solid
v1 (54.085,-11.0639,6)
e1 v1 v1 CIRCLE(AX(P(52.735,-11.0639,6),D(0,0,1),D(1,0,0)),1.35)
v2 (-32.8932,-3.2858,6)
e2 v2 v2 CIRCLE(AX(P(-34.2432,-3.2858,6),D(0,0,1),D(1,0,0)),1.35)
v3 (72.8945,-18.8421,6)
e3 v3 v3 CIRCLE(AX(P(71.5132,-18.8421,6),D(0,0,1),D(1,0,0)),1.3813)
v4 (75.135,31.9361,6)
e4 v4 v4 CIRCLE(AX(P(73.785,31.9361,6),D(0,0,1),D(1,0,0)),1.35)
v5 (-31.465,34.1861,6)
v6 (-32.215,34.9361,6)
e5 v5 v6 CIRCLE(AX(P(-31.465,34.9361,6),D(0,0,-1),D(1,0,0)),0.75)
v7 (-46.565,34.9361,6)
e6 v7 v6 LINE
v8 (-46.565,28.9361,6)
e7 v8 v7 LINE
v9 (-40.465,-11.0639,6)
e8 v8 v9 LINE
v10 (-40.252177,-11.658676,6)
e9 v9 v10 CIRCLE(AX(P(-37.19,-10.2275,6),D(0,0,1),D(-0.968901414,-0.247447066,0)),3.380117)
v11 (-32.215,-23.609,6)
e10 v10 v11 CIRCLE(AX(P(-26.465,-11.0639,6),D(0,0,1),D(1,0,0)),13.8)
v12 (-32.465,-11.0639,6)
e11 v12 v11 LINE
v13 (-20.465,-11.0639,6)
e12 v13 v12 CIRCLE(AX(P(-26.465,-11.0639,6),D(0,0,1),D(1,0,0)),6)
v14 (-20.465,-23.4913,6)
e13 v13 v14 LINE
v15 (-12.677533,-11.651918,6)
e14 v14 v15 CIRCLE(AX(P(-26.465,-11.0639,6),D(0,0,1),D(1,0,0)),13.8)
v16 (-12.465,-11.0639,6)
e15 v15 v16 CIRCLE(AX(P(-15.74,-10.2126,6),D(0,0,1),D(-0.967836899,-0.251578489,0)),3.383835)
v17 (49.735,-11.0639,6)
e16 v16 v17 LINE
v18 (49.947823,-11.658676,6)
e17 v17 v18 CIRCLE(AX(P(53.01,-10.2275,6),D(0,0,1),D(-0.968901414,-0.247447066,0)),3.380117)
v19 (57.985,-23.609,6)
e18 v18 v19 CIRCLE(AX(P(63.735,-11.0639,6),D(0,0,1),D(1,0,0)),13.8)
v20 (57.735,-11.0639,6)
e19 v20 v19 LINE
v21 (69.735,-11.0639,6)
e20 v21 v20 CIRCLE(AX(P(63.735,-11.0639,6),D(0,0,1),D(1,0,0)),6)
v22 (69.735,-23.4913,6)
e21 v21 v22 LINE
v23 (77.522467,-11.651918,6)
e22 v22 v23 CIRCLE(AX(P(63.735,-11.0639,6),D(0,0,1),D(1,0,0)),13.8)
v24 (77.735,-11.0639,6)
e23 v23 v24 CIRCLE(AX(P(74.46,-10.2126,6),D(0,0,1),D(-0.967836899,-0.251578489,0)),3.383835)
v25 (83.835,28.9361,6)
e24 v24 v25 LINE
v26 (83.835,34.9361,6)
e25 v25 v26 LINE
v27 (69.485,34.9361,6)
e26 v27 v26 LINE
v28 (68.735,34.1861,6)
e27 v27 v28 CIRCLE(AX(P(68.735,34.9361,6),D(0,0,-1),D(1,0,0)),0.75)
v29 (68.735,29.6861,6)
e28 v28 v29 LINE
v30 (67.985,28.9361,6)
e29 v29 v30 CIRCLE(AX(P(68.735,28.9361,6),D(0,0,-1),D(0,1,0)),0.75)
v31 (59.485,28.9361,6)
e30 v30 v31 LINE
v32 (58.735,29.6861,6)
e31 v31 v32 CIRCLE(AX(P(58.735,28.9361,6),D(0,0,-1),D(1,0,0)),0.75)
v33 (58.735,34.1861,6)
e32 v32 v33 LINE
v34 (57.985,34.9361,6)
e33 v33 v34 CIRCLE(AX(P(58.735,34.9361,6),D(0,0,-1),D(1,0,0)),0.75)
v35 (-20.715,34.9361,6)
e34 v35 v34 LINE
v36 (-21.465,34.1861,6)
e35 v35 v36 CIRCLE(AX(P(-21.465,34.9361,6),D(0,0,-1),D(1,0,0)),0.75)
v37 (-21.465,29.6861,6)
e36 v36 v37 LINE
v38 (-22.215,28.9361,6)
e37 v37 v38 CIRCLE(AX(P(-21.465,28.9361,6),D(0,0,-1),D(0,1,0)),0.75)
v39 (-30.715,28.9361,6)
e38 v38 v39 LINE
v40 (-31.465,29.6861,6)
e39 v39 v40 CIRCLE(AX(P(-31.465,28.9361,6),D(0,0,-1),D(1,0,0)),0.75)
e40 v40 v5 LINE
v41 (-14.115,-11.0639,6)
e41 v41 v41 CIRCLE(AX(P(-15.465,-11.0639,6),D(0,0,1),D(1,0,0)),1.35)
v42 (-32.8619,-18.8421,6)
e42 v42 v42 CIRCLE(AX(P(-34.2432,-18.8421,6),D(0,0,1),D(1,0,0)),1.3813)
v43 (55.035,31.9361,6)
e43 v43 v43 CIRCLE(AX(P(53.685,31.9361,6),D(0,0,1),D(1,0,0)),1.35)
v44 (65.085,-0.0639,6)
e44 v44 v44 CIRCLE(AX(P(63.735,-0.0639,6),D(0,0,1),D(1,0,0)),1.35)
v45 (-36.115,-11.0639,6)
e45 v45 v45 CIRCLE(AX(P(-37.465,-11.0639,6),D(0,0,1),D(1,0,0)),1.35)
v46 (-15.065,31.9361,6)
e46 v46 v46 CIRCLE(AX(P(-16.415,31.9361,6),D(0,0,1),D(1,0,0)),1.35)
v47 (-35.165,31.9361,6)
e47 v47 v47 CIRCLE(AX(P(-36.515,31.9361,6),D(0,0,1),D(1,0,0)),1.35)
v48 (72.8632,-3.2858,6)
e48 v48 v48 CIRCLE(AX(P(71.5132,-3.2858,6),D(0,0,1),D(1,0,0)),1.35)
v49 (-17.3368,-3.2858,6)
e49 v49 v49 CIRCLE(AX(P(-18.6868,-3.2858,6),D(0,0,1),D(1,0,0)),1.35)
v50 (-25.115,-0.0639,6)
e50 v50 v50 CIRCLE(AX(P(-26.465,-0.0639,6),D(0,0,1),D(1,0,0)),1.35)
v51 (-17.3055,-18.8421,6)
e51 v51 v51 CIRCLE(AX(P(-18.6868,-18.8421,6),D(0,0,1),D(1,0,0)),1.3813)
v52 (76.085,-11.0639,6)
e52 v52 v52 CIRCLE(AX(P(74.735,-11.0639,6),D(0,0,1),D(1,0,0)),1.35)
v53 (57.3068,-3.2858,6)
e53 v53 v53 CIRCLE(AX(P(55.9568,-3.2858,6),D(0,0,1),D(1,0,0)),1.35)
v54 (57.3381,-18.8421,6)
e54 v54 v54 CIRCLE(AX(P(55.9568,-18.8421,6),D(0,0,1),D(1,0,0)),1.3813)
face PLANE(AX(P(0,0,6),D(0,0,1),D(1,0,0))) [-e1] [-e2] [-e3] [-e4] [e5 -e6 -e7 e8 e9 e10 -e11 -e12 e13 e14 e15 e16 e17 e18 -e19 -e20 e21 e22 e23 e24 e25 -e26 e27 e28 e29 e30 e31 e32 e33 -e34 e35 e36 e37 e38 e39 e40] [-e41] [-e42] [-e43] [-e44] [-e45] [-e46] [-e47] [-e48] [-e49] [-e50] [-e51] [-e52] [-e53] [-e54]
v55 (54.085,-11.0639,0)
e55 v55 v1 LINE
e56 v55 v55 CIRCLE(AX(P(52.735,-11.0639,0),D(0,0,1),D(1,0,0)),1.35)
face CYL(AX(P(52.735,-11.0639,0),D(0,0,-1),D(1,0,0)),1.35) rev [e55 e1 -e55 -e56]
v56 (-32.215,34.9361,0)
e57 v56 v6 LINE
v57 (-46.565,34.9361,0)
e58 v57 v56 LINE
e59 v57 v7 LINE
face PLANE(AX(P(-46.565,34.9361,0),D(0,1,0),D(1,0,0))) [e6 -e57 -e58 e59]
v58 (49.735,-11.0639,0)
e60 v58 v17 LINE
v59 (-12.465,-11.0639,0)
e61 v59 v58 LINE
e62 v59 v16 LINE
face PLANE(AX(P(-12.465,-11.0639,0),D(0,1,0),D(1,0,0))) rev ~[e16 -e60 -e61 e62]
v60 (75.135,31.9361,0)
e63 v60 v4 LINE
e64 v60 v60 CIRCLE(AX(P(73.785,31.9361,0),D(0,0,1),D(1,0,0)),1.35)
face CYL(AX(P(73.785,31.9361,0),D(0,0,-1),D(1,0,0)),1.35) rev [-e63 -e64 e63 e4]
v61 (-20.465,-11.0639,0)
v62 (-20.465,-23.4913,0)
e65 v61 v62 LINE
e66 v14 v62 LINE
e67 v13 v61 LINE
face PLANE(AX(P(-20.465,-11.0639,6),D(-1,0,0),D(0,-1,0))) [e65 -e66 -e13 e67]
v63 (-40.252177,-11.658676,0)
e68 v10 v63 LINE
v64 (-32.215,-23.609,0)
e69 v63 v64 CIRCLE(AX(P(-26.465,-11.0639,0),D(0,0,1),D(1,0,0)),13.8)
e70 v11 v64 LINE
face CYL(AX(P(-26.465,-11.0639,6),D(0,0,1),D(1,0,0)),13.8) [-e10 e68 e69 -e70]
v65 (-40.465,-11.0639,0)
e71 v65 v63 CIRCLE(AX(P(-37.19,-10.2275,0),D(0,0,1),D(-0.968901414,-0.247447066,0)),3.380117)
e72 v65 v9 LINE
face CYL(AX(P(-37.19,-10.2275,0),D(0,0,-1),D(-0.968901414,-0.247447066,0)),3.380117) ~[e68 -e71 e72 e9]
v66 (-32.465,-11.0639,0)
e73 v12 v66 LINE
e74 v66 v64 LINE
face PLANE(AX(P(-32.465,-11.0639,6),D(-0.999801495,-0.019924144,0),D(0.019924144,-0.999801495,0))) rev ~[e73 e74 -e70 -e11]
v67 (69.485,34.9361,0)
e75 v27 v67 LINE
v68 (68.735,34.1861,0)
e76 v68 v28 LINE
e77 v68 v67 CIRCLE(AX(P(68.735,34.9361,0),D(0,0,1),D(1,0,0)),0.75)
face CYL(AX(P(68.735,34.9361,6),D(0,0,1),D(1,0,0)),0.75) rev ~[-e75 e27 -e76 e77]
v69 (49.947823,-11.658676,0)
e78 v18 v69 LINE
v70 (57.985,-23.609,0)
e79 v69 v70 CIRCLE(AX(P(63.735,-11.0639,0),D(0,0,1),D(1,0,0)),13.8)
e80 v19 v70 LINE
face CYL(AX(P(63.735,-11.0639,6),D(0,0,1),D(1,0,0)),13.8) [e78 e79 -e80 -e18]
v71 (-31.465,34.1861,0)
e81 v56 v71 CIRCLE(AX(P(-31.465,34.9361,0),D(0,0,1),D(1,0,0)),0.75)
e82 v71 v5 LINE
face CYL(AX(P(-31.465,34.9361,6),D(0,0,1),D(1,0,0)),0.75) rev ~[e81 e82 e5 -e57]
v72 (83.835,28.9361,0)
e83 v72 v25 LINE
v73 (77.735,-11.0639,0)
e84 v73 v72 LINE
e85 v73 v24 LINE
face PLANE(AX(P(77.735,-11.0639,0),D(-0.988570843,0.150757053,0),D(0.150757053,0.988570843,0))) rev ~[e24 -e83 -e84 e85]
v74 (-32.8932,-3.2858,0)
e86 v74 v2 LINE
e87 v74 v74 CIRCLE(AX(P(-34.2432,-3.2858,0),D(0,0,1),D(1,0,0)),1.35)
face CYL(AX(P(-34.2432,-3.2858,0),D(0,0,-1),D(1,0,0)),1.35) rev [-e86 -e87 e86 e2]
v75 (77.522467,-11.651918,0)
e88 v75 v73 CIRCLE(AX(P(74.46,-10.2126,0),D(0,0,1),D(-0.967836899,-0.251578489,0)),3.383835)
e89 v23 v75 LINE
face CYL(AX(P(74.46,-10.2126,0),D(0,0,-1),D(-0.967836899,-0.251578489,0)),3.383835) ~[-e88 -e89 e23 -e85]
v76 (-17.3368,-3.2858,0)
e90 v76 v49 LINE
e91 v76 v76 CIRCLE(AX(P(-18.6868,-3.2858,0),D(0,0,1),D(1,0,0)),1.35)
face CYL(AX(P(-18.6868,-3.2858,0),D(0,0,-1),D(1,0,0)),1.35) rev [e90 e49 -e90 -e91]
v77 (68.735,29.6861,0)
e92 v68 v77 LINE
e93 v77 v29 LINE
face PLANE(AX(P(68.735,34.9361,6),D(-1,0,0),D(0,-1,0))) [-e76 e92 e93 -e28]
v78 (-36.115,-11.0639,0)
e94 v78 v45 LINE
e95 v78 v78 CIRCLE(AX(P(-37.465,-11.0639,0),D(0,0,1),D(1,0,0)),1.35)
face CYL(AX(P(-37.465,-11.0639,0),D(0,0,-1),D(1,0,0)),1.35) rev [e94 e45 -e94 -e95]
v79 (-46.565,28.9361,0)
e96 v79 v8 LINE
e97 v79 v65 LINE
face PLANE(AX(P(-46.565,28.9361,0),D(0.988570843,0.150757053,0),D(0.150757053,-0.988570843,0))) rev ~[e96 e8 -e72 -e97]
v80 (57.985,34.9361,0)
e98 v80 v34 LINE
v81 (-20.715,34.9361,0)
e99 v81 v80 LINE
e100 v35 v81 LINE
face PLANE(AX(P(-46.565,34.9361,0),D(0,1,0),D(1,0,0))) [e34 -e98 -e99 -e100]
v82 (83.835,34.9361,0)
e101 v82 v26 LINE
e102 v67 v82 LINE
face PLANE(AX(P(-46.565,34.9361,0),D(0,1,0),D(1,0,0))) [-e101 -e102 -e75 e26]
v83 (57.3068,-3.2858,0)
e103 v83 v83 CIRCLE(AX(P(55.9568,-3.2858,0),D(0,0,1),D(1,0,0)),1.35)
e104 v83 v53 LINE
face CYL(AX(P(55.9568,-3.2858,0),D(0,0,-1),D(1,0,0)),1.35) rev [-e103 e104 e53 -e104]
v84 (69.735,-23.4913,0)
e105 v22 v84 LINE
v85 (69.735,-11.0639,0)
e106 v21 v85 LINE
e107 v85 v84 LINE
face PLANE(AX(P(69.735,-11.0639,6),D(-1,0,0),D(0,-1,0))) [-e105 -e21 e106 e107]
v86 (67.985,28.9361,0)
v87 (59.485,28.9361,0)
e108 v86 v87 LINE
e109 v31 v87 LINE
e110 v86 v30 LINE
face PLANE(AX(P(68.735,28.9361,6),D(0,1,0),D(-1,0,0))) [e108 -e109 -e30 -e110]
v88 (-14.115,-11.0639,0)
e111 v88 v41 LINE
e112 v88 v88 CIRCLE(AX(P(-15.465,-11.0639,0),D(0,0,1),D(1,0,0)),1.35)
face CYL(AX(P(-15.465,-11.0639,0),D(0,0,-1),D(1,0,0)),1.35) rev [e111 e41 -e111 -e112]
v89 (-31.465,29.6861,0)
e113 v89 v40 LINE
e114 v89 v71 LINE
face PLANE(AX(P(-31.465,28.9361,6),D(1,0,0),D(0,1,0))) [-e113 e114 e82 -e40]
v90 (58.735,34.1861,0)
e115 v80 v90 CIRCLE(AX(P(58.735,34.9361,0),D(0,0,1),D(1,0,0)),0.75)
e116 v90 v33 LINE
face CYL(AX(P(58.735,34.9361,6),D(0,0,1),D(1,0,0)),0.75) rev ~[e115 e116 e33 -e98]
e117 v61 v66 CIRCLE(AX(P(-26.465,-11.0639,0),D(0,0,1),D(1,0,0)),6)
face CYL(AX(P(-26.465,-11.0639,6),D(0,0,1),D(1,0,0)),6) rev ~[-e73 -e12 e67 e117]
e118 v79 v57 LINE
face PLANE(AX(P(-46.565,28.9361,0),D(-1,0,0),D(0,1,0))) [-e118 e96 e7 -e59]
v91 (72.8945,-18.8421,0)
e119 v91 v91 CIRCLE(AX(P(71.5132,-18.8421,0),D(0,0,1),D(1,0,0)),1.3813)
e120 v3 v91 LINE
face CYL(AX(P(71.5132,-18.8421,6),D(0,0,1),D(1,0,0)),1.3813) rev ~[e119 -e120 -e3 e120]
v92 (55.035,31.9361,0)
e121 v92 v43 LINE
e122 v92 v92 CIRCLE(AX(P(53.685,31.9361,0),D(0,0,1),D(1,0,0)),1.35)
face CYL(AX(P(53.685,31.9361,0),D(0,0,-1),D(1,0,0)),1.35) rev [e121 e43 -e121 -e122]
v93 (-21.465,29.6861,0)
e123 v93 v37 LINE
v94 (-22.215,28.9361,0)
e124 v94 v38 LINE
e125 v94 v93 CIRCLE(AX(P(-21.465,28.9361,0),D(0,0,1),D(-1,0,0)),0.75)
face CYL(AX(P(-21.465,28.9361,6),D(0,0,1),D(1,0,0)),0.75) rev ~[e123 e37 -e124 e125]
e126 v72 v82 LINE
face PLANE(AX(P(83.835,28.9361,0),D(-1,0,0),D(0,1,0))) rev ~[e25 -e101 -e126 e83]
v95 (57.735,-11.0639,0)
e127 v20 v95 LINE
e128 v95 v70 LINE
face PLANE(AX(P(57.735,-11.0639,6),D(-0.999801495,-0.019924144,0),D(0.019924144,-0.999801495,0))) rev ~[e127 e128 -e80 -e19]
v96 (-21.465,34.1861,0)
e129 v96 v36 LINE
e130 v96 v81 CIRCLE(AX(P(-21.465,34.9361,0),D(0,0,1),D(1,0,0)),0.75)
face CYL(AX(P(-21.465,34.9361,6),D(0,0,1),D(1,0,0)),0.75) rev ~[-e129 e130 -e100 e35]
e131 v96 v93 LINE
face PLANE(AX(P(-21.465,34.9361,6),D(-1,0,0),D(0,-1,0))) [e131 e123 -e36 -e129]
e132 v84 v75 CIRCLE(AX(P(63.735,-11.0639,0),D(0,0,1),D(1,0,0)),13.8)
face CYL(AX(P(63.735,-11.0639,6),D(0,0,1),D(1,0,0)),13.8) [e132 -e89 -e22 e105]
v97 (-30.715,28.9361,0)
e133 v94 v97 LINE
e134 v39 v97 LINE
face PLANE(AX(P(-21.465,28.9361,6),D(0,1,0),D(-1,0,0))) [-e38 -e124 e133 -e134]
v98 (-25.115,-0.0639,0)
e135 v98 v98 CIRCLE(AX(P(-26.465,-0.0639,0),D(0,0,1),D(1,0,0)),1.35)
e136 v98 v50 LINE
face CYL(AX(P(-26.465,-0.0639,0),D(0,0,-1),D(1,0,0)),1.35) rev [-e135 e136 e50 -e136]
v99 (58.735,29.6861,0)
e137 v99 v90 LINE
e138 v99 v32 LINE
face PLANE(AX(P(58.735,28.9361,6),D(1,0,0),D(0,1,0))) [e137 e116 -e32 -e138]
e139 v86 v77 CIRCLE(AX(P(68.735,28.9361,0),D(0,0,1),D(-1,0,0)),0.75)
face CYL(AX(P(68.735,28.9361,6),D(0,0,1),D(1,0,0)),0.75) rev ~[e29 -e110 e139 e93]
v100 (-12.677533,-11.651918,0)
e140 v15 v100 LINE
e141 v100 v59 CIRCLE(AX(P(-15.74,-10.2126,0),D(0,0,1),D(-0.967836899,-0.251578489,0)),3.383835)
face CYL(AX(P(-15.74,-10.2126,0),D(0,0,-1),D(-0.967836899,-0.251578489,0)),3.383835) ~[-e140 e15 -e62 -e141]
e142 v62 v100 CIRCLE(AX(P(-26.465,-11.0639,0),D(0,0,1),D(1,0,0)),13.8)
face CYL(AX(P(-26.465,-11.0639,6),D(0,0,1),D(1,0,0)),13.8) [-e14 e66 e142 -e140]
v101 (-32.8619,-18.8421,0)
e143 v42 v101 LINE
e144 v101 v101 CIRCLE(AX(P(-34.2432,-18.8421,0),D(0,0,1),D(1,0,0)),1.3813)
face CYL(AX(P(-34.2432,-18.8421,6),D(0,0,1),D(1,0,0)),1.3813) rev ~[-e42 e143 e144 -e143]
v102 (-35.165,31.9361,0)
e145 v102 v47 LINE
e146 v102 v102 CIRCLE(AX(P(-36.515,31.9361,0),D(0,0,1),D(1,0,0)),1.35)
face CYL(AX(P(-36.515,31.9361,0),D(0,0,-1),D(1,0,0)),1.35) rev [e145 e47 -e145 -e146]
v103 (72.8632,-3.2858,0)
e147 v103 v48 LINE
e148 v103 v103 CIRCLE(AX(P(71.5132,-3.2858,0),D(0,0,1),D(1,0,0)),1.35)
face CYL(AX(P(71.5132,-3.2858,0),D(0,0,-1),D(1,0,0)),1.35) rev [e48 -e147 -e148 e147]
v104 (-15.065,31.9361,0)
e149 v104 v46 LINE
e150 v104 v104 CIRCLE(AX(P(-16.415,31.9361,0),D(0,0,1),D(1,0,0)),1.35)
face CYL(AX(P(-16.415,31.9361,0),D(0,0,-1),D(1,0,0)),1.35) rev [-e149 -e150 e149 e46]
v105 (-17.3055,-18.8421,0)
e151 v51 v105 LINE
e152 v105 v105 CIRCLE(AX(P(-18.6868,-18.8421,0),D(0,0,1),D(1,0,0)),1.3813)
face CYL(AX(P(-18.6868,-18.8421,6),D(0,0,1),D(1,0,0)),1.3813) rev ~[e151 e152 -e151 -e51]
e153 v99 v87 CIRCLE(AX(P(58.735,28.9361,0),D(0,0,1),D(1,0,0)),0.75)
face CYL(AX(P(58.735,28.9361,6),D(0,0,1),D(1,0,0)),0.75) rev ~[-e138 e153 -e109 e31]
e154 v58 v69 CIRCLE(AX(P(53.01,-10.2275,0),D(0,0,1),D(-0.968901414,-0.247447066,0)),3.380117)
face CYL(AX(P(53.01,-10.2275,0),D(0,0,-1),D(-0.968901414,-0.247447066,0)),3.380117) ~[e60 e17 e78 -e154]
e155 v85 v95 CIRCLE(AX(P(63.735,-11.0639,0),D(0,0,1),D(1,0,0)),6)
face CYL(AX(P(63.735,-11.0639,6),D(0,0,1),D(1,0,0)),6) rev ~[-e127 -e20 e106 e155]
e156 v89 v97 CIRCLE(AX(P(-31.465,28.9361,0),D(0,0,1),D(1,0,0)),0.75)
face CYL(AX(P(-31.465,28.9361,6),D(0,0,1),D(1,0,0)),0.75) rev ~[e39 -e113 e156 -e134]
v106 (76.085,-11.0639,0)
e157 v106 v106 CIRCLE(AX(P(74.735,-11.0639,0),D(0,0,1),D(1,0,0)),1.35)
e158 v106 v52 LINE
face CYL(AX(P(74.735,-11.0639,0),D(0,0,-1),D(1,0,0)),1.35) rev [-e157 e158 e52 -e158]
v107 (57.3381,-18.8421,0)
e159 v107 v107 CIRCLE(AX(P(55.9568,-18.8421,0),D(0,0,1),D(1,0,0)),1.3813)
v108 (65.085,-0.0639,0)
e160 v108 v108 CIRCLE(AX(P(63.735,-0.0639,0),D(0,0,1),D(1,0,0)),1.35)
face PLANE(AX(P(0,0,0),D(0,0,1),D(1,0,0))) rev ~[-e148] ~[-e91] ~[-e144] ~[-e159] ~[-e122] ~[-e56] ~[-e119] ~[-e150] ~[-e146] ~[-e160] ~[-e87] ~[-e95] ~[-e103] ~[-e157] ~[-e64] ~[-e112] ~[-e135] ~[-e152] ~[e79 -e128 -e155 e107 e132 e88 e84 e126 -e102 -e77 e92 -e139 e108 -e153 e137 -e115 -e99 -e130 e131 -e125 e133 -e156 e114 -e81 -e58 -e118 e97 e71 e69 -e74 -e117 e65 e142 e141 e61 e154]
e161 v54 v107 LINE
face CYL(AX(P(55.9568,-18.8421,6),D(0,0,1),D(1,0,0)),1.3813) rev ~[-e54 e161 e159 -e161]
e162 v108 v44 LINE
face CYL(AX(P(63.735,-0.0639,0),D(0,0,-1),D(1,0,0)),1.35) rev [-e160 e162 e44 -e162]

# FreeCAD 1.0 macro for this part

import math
import FreeCAD as App
import Part
import Sketcher

V = App.Vector
Q = App.Units.Quantity

doc = App.newDocument("Part")
body = doc.addObject("PartDesign::Body", "Body")

# Sketch on XY plane
sketch1 = body.newObject("Sketcher::SketchObject", "Sketch")
sketch1.AttachmentSupport = (doc.getObject("XY_Plane"), [""])
sketch1.MapMode = "FlatFace"
sketch1.addGeometry(Part.LineSegment(V(-46.6, 34.9, 0), V(-46.6, 28.9, 0)), False)
sketch1.addGeometry(Part.LineSegment(V(-46.6, 28.9, 0), V(-40.5, -11.1, 0)), False)
sketch1.addGeometry(Part.ArcOfCircle(Part.Circle(V(-37.2, -10.2, 0), V(0, 0, 1), 3.4), math.radians(-166), math.radians(-14)), False)
sketch1.addGeometry(Part.ArcOfCircle(Part.Circle(V(-26.5, -11.1, 0), V(0, 0, 1), 7.4), math.radians(0), math.radians(180)), False)
sketch1.addGeometry(Part.ArcOfCircle(Part.Circle(V(-15.7, -10.2, 0), V(0, 0, 1), 3.4), math.radians(-165), math.radians(-15)), False)
sketch1.addGeometry(Part.LineSegment(V(-12.5, -11.1, 0), V(49.7, -11.1, 0)), False)
sketch1.addGeometry(Part.ArcOfCircle(Part.Circle(V(53, -10.2, 0), V(0, 0, 1), 3.4), math.radians(-166), math.radians(-14)), False)
sketch1.addGeometry(Part.ArcOfCircle(Part.Circle(V(63.7, -11.1, 0), V(0, 0, 1), 7.5), math.radians(0), math.radians(180)), False)
sketch1.addGeometry(Part.ArcOfCircle(Part.Circle(V(74.5, -10.2, 0), V(0, 0, 1), 3.4), math.radians(-165), math.radians(-15)), False)
sketch1.addGeometry(Part.LineSegment(V(77.7, -11.1, 0), V(83.8, 28.9, 0)), False)
sketch1.addGeometry(Part.LineSegment(V(83.8, 28.9, 0), V(83.8, 34.9, 0)), False)
sketch1.addGeometry(Part.LineSegment(V(83.8, 34.9, 0), V(-46.6, 34.9, 0)), False)
sketch1.addGeometry(Part.Circle(V(-36.5, 31.9, 0), V(0, 0, 1), 1.4), False)
sketch1.addGeometry(Part.Circle(V(-16.4, 31.9, 0), V(0, 0, 1), 1.4), False)
sketch1.addGeometry(Part.Circle(V(53.7, 31.9, 0), V(0, 0, 1), 1.4), False)
sketch1.addGeometry(Part.Circle(V(73.8, 31.9, 0), V(0, 0, 1), 1.4), False)
sketch1.addGeometry(Part.Circle(V(63.7, -0.1, 0), V(0, 0, 1), 1.4), False)
sketch1.addGeometry(Part.Circle(V(-37.5, -11.1, 0), V(0, 0, 1), 1.4), False)
sketch1.addGeometry(Part.Circle(V(-15.5, -11.1, 0), V(0, 0, 1), 1.4), False)
sketch1.addGeometry(Part.Circle(V(-34.2, -3.3, 0), V(0, 0, 1), 1.4), False)
sketch1.addGeometry(Part.Circle(V(-18.7, -3.3, 0), V(0, 0, 1), 1.4), False)
sketch1.addGeometry(Part.Circle(V(-26.5, -0.1, 0), V(0, 0, 1), 1.4), False)
sketch1.addGeometry(Part.Circle(V(52.7, -11.1, 0), V(0, 0, 1), 1.4), False)
sketch1.addGeometry(Part.Circle(V(74.7, -11.1, 0), V(0, 0, 1), 1.4), False)
sketch1.addGeometry(Part.Circle(V(56, -3.3, 0), V(0, 0, 1), 1.4), False)
sketch1.addGeometry(Part.Circle(V(71.5, -3.3, 0), V(0, 0, 1), 1.4), False)
sketch1.addConstraint(Sketcher.Constraint("Coincident", 0, 2, 1, 1))
sketch1.addConstraint(Sketcher.Constraint("Coincident", 1, 2, 2, 1))
sketch1.addConstraint(Sketcher.Constraint("Coincident", 2, 2, 3, 2))
sketch1.addConstraint(Sketcher.Constraint("Coincident", 3, 1, 4, 1))
sketch1.addConstraint(Sketcher.Constraint("Coincident", 4, 2, 5, 1))
sketch1.addConstraint(Sketcher.Constraint("Coincident", 5, 2, 6, 1))
sketch1.addConstraint(Sketcher.Constraint("Coincident", 6, 2, 7, 2))
sketch1.addConstraint(Sketcher.Constraint("Coincident", 7, 1, 8, 1))
sketch1.addConstraint(Sketcher.Constraint("Coincident", 8, 2, 9, 1))
sketch1.addConstraint(Sketcher.Constraint("Coincident", 9, 2, 10, 1))
sketch1.addConstraint(Sketcher.Constraint("Coincident", 10, 2, 11, 1))
sketch1.addConstraint(Sketcher.Constraint("Coincident", 11, 2, 0, 1))
sketch1.addConstraint(Sketcher.Constraint("Vertical", 0))
sketch1.addConstraint(Sketcher.Constraint("Horizontal", 5))
sketch1.addConstraint(Sketcher.Constraint("Vertical", 10))
sketch1.addConstraint(Sketcher.Constraint("Horizontal", 11))
sketch1.addConstraint(Sketcher.Constraint("Equal", 2, 6))
sketch1.addConstraint(Sketcher.Constraint("Equal", 3, 7))
sketch1.addConstraint(Sketcher.Constraint("Equal", 4, 8))
sketch1.addConstraint(Sketcher.Constraint("Equal", 12, 13))
sketch1.addConstraint(Sketcher.Constraint("Equal", 13, 14))
sketch1.addConstraint(Sketcher.Constraint("Equal", 14, 15))
sketch1.addConstraint(Sketcher.Constraint("Equal", 15, 16))
sketch1.addConstraint(Sketcher.Constraint("Equal", 16, 17))
sketch1.addConstraint(Sketcher.Constraint("Equal", 17, 18))
sketch1.addConstraint(Sketcher.Constraint("Equal", 18, 19))
sketch1.addConstraint(Sketcher.Constraint("Equal", 19, 20))
sketch1.addConstraint(Sketcher.Constraint("Equal", 20, 21))
sketch1.addConstraint(Sketcher.Constraint("Equal", 21, 22))
sketch1.addConstraint(Sketcher.Constraint("Equal", 22, 23))
sketch1.addConstraint(Sketcher.Constraint("Equal", 23, 24))
sketch1.addConstraint(Sketcher.Constraint("Equal", 24, 25))
sketch1.addConstraint(Sketcher.Constraint("Horizontal", 2, 3, 6, 3))
sketch1.addConstraint(Sketcher.Constraint("Horizontal", 3, 3, 7, 3))
sketch1.addConstraint(Sketcher.Constraint("Horizontal", 4, 3, 8, 3))
sketch1.addConstraint(Sketcher.Constraint("Horizontal", 12, 3, 13, 3))
sketch1.addConstraint(Sketcher.Constraint("Horizontal", 13, 3, 14, 3))
sketch1.addConstraint(Sketcher.Constraint("Horizontal", 14, 3, 15, 3))
sketch1.addConstraint(Sketcher.Constraint("Horizontal", 7, 3, 17, 3))
sketch1.addConstraint(Sketcher.Constraint("Horizontal", 17, 3, 18, 3))
sketch1.addConstraint(Sketcher.Constraint("Horizontal", 19, 3, 20, 3))
sketch1.addConstraint(Sketcher.Constraint("Horizontal", 16, 3, 21, 3))
sketch1.addConstraint(Sketcher.Constraint("Horizontal", 18, 3, 22, 3))
sketch1.addConstraint(Sketcher.Constraint("Horizontal", 22, 3, 23, 3))
sketch1.addConstraint(Sketcher.Constraint("Horizontal", 20, 3, 24, 3))
sketch1.addConstraint(Sketcher.Constraint("Horizontal", 24, 3, 25, 3))
sketch1.addConstraint(Sketcher.Constraint("Horizontal", 23, 3, 1, 2))
sketch1.addConstraint(Sketcher.Constraint("Horizontal", 1, 2, 2, 2))
sketch1.addConstraint(Sketcher.Constraint("Horizontal", 2, 2, 3, 1))
sketch1.addConstraint(Sketcher.Constraint("Horizontal", 3, 1, 4, 2))
sketch1.addConstraint(Sketcher.Constraint("Horizontal", 5, 2, 6, 2))
sketch1.addConstraint(Sketcher.Constraint("Horizontal", 6, 2, 7, 1))
sketch1.addConstraint(Sketcher.Constraint("Horizontal", 7, 1, 8, 2))
sketch1.addConstraint(Sketcher.Constraint("Horizontal", 0, 2, 9, 2))
sketch1.addConstraint(Sketcher.Constraint("Vertical", 7, 3, 16, 3))
sketch1.addConstraint(Sketcher.Constraint("Vertical", 3, 3, 21, 3))
sketch1.addConstraint(Sketcher.Constraint("Equal", 1, 9))
sketch1.addConstraint(Sketcher.Constraint("Diameter", 12, Q("2.7 mm")))
sketch1.addConstraint(Sketcher.Constraint("DistanceX", 11, 2, 11, 1, Q("130.4 mm")))
sketch1.addConstraint(Sketcher.Constraint("DistanceY", 0, 2, 0, 1, Q("6 mm")))
sketch1.addConstraint(Sketcher.Constraint("Radius", 2, Q("3.38 mm")))
sketch1.addConstraint(Sketcher.Constraint("Radius", 3, Q("7.45 mm")))
sketch1.addConstraint(Sketcher.Constraint("DistanceX", 5, 1, 5, 2, Q("62.2 mm")))
sketch1.addConstraint(Sketcher.Constraint("DistanceY", 3, 3, 12, 3, Q("43 mm")))
sketch1.addConstraint(Sketcher.Constraint("DistanceY", 7, 3, 16, 3, Q("11 mm")))
sketch1.addConstraint(Sketcher.Constraint("DistanceX", 17, 3, 3, 3, Q("11 mm")))
sketch1.addConstraint(Sketcher.Constraint("DistanceX", 3, 3, 18, 3, Q("11 mm")))
sketch1.addConstraint(Sketcher.Constraint("DistanceX", 22, 3, 7, 3, Q("11 mm")))
sketch1.addConstraint(Sketcher.Constraint("DistanceX", 7, 3, 23, 3, Q("11 mm")))
sketch1.addConstraint(Sketcher.Constraint("DistanceY", 0, 2, 12, 3, Q("3 mm")))
sketch1.addConstraint(Sketcher.Constraint("DistanceX", 1, 2, 17, 3, Q("3 mm")))
sketch1.addConstraint(Sketcher.Constraint("DistanceX", 18, 3, 4, 2, Q("3 mm")))
sketch1.addConstraint(Sketcher.Constraint("Radius", 4, Q("3.3838 mm")))
sketch1.addConstraint(Sketcher.Constraint("DistanceX", 12, 3, 13, 3, Q("20.1 mm")))
sketch1.addConstraint(Sketcher.Constraint("DistanceX", 13, 3, 14, 3, Q("70.1 mm")))
sketch1.addConstraint(Sketcher.Constraint("DistanceX", 14, 3, 15, 3, Q("20.1 mm")))
sketch1.addConstraint(Sketcher.Constraint("DistanceX", 2, 3, -1, 1, Q("37.19 mm")))
sketch1.addConstraint(Sketcher.Constraint("DistanceX", 12, 3, 3, 3, Q("10.05 mm")))
sketch1.addConstraint(Sketcher.Constraint("DistanceY", 3, 3, -1, 1, Q("11.064 mm")))
sketch1.addConstraint(Sketcher.Constraint("DistanceY", 17, 3, 19, 3, Q("7.778 mm")))
sketch1.addConstraint(Sketcher.Constraint("DistanceX", 19, 3, -1, 1, Q("34.2432 mm")))
sketch1.addConstraint(Sketcher.Constraint("DistanceX", 20, 3, -1, 1, Q("18.6868 mm")))
sketch1.addConstraint(Sketcher.Constraint("DistanceX", -1, 1, 24, 3, Q("55.9568 mm")))
sketch1.addConstraint(Sketcher.Constraint("DistanceX", -1, 1, 25, 3, Q("71.5132 mm")))
pad1 = body.newObject("PartDesign::Pad", "Pad")
pad1.Profile = sketch1
pad1.Length = 6

# Sketch on XY plane
sketch2 = body.newObject("Sketcher::SketchObject", "Sketch001")
sketch2.AttachmentSupport = (doc.getObject("XY_Plane"), [""])
sketch2.MapMode = "FlatFace"
sketch2.AttachmentOffset = App.Placement(V(0, 0, 6), App.Rotation())
sketch2.addGeometry(Part.LineSegment(V(69, 29, 0), V(69, 35, 0)), False)
sketch2.addGeometry(Part.LineSegment(V(69, 35, 0), V(59, 35, 0)), False)
sketch2.addGeometry(Part.LineSegment(V(59, 35, 0), V(59, 29, 0)), False)
sketch2.addGeometry(Part.LineSegment(V(59, 29, 0), V(69, 29, 0)), False)
sketch2.addGeometry(Part.LineSegment(V(-21, 29, 0), V(-21, 35, 0)), False)
sketch2.addGeometry(Part.LineSegment(V(-21, 35, 0), V(-31, 35, 0)), False)
sketch2.addGeometry(Part.LineSegment(V(-31, 35, 0), V(-31, 29, 0)), False)
sketch2.addGeometry(Part.LineSegment(V(-31, 29, 0), V(-21, 29, 0)), False)
sketch2.addConstraint(Sketcher.Constraint("Coincident", 0, 2, 1, 1))
sketch2.addConstraint(Sketcher.Constraint("Coincident", 1, 2, 2, 1))
sketch2.addConstraint(Sketcher.Constraint("Coincident", 2, 2, 3, 1))
sketch2.addConstraint(Sketcher.Constraint("Coincident", 3, 2, 0, 1))
sketch2.addConstraint(Sketcher.Constraint("Coincident", 4, 2, 5, 1))
sketch2.addConstraint(Sketcher.Constraint("Coincident", 5, 2, 6, 1))
sketch2.addConstraint(Sketcher.Constraint("Coincident", 6, 2, 7, 1))
sketch2.addConstraint(Sketcher.Constraint("Coincident", 7, 2, 4, 1))
sketch2.addConstraint(Sketcher.Constraint("Vertical", 0))
sketch2.addConstraint(Sketcher.Constraint("Horizontal", 1))
sketch2.addConstraint(Sketcher.Constraint("Vertical", 2))
sketch2.addConstraint(Sketcher.Constraint("Horizontal", 3))
sketch2.addConstraint(Sketcher.Constraint("Vertical", 4))
sketch2.addConstraint(Sketcher.Constraint("Horizontal", 5))
sketch2.addConstraint(Sketcher.Constraint("Vertical", 6))
sketch2.addConstraint(Sketcher.Constraint("Horizontal", 7))
sketch2.addConstraint(Sketcher.Constraint("Horizontal", 1, 2, 4, 2))
sketch2.addConstraint(Sketcher.Constraint("Horizontal", 3, 2, 6, 2))
sketch2.addConstraint(Sketcher.Constraint("Equal", 3, 5))
sketch2.addConstraint(Sketcher.Constraint("DistanceX", 1, 2, 1, 1, Q("10 mm")))
sketch2.addConstraint(Sketcher.Constraint("DistanceY", 0, 1, 0, 2, Q("6 mm")))
sketch2.addConstraint(Sketcher.Constraint("DistanceX", 4, 2, 1, 2, Q("80.2 mm")))
sketch2.addConstraint(Sketcher.Constraint("DistanceX", -1, 1, 0, 2, Q("68.735 mm")))
sketch2.addConstraint(Sketcher.Constraint("DistanceY", -1, 1, 0, 2, Q("34.936 mm")))
pocket1 = body.newObject("PartDesign::Pocket", "Pocket")
pocket1.Profile = sketch2
pocket1.Length = 10

# Sketch on XY plane
sketch3 = body.newObject("Sketcher::SketchObject", "Sketch002")
sketch3.AttachmentSupport = (doc.getObject("XY_Plane"), [""])
sketch3.MapMode = "FlatFace"
sketch3.AttachmentOffset = App.Placement(V(0, 0, 6), App.Rotation())
sketch3.addGeometry(Part.Circle(V(58.7, 28.9, 0), V(0, 0, 1), 0.8), False)
sketch3.addGeometry(Part.Circle(V(58.7, 34.9, 0), V(0, 0, 1), 0.8), False)
sketch3.addGeometry(Part.Circle(V(68.7, 28.9, 0), V(0, 0, 1), 0.8), False)
sketch3.addGeometry(Part.Circle(V(-21.5, 34.9, 0), V(0, 0, 1), 0.8), False)
sketch3.addGeometry(Part.Circle(V(68.7, 34.9, 0), V(0, 0, 1), 0.8), False)
sketch3.addGeometry(Part.Circle(V(-21.5, 28.9, 0), V(0, 0, 1), 0.8), False)
sketch3.addGeometry(Part.Circle(V(-31.5, 28.9, 0), V(0, 0, 1), 0.8), False)
sketch3.addGeometry(Part.Circle(V(-31.5, 34.9, 0), V(0, 0, 1), 0.8), False)
sketch3.addConstraint(Sketcher.Constraint("Equal", 0, 1))
sketch3.addConstraint(Sketcher.Constraint("Equal", 1, 2))
sketch3.addConstraint(Sketcher.Constraint("Equal", 2, 3))
sketch3.addConstraint(Sketcher.Constraint("Equal", 3, 4))
sketch3.addConstraint(Sketcher.Constraint("Equal", 4, 5))
sketch3.addConstraint(Sketcher.Constraint("Equal", 5, 6))
sketch3.addConstraint(Sketcher.Constraint("Equal", 6, 7))
sketch3.addConstraint(Sketcher.Constraint("Horizontal", 0, 3, 2, 3))
sketch3.addConstraint(Sketcher.Constraint("Horizontal", 1, 3, 3, 3))
sketch3.addConstraint(Sketcher.Constraint("Horizontal", 3, 3, 4, 3))
sketch3.addConstraint(Sketcher.Constraint("Horizontal", 2, 3, 5, 3))
sketch3.addConstraint(Sketcher.Constraint("Horizontal", 5, 3, 6, 3))
sketch3.addConstraint(Sketcher.Constraint("Horizontal", 4, 3, 7, 3))
sketch3.addConstraint(Sketcher.Constraint("Vertical", 0, 3, 1, 3))
sketch3.addConstraint(Sketcher.Constraint("Vertical", 2, 3, 4, 3))
sketch3.addConstraint(Sketcher.Constraint("Vertical", 3, 3, 5, 3))
sketch3.addConstraint(Sketcher.Constraint("Vertical", 6, 3, 7, 3))
sketch3.addConstraint(Sketcher.Constraint("Diameter", 0, Q("1.5 mm")))
sketch3.addConstraint(Sketcher.Constraint("DistanceY", 0, 3, 1, 3, Q("6 mm")))
sketch3.addConstraint(Sketcher.Constraint("DistanceX", 0, 3, 2, 3, Q("10 mm")))
sketch3.addConstraint(Sketcher.Constraint("DistanceX", 6, 3, 5, 3, Q("10 mm")))
sketch3.addConstraint(Sketcher.Constraint("DistanceX", 3, 3, 1, 3, Q("80.2 mm")))
sketch3.addConstraint(Sketcher.Constraint("DistanceX", -1, 1, 0, 3, Q("58.735 mm")))
sketch3.addConstraint(Sketcher.Constraint("DistanceY", -1, 1, 0, 3, Q("28.936 mm")))
pocket2 = body.newObject("PartDesign::Pocket", "Pocket001")
pocket2.Profile = sketch3
pocket2.Length = 10

# Sketch on XY plane
sketch4 = body.newObject("Sketcher::SketchObject", "Sketch003")
sketch4.AttachmentSupport = (doc.getObject("XY_Plane"), [""])
sketch4.MapMode = "FlatFace"
sketch4.AttachmentOffset = App.Placement(V(0, 0, 6), App.Rotation())
sketch4.addGeometry(Part.ArcOfCircle(Part.Circle(V(63.7, -11.1, 0), V(0, 0, 1), 13.8), math.radians(-64), math.radians(-2)), False)
sketch4.addGeometry(Part.ArcOfCircle(Part.Circle(V(74.5, -10.2, 0), V(0, 0, 1), 3.4), math.radians(-165), math.radians(-25)), False)
sketch4.addGeometry(Part.ArcOfCircle(Part.Circle(V(63.7, -11.1, 0), V(0, 0, 1), 7.5), math.radians(0), math.radians(180)), False)
sketch4.addGeometry(Part.ArcOfCircle(Part.Circle(V(53, -10.2, 0), V(0, 0, 1), 3.4), math.radians(-155), math.radians(-14)), False)
sketch4.addGeometry(Part.ArcOfCircle(Part.Circle(V(63.7, -11.1, 0), V(0, 0, 1), 13.8), math.radians(-178), math.radians(-115)), False)
sketch4.addGeometry(Part.LineSegment(V(58, -23.6, 0), V(57.7, -11.1, 0)), False)
sketch4.addGeometry(Part.ArcOfCircle(Part.Circle(V(63.7, -11.1, 0), V(0, 0, 1), 6), math.radians(0), math.radians(180)), False)
sketch4.addGeometry(Part.LineSegment(V(69.7, -11.1, 0), V(69.7, -23.5, 0)), False)
sketch4.addGeometry(Part.Circle(V(56, -18.8, 0), V(0, 0, 1), 1.4), False)
sketch4.addGeometry(Part.Circle(V(71.5, -18.8, 0), V(0, 0, 1), 1.4), False)
sketch4.addGeometry(Part.ArcOfCircle(Part.Circle(V(-37.2, -10.2, 0), V(0, 0, 1), 3.4), math.radians(-155), math.radians(-14)), False)
sketch4.addGeometry(Part.ArcOfCircle(Part.Circle(V(-26.5, -11.1, 0), V(0, 0, 1), 13.8), math.radians(-178), math.radians(-115)), False)
sketch4.addGeometry(Part.LineSegment(V(-32.2, -23.6, 0), V(-32.5, -11.1, 0)), False)
sketch4.addGeometry(Part.ArcOfCircle(Part.Circle(V(-26.5, -11.1, 0), V(0, 0, 1), 6), math.radians(0), math.radians(180)), False)
sketch4.addGeometry(Part.LineSegment(V(-20.5, -11.1, 0), V(-20.5, -23.5, 0)), False)
sketch4.addGeometry(Part.ArcOfCircle(Part.Circle(V(-26.5, -11.1, 0), V(0, 0, 1), 13.8), math.radians(-64), math.radians(-2)), False)
sketch4.addGeometry(Part.ArcOfCircle(Part.Circle(V(-15.7, -10.2, 0), V(0, 0, 1), 3.4), math.radians(-165), math.radians(-25)), False)
sketch4.addGeometry(Part.ArcOfCircle(Part.Circle(V(-26.5, -11.1, 0), V(0, 0, 1), 7.4), math.radians(0), math.radians(180)), False)
sketch4.addGeometry(Part.Circle(V(-34.2, -18.8, 0), V(0, 0, 1), 1.4), False)
sketch4.addGeometry(Part.Circle(V(-18.7, -18.8, 0), V(0, 0, 1), 1.4), False)
sketch4.addConstraint(Sketcher.Constraint("Coincident", 0, 2, 1, 2))
sketch4.addConstraint(Sketcher.Constraint("Coincident", 1, 1, 2, 1))
sketch4.addConstraint(Sketcher.Constraint("Coincident", 2, 2, 3, 2))
sketch4.addConstraint(Sketcher.Constraint("Coincident", 3, 1, 4, 1))
sketch4.addConstraint(Sketcher.Constraint("Coincident", 4, 2, 5, 1))
sketch4.addConstraint(Sketcher.Constraint("Coincident", 5, 2, 6, 2))
sketch4.addConstraint(Sketcher.Constraint("Tangent", 6, 1, 7, 1))
sketch4.addConstraint(Sketcher.Constraint("Coincident", 7, 2, 0, 1))
sketch4.addConstraint(Sketcher.Constraint("Coincident", 10, 1, 11, 1))
sketch4.addConstraint(Sketcher.Constraint("Coincident", 11, 2, 12, 1))
sketch4.addConstraint(Sketcher.Constraint("Coincident", 12, 2, 13, 2))
sketch4.addConstraint(Sketcher.Constraint("Tangent", 13, 1, 14, 1))
sketch4.addConstraint(Sketcher.Constraint("Coincident", 14, 2, 15, 1))
sketch4.addConstraint(Sketcher.Constraint("Coincident", 15, 2, 16, 2))
sketch4.addConstraint(Sketcher.Constraint("Coincident", 16, 1, 17, 1))
sketch4.addConstraint(Sketcher.Constraint("Coincident", 17, 2, 10, 2))
sketch4.addConstraint(Sketcher.Constraint("Vertical", 7))
sketch4.addConstraint(Sketcher.Constraint("Vertical", 14))
sketch4.addConstraint(Sketcher.Constraint("Coincident", 2, 3, 0, 3))
sketch4.addConstraint(Sketcher.Constraint("Coincident", 4, 3, 0, 3))
sketch4.addConstraint(Sketcher.Constraint("Coincident", 6, 3, 0, 3))
sketch4.addConstraint(Sketcher.Constraint("Coincident", 13, 3, 11, 3))
sketch4.addConstraint(Sketcher.Constraint("Coincident", 15, 3, 11, 3))
sketch4.addConstraint(Sketcher.Constraint("Coincident", 17, 3, 11, 3))
sketch4.addConstraint(Sketcher.Constraint("Equal", 0, 4))
sketch4.addConstraint(Sketcher.Constraint("Equal", 8, 9))
sketch4.addConstraint(Sketcher.Constraint("Equal", 3, 10))
sketch4.addConstraint(Sketcher.Constraint("Equal", 4, 11))
sketch4.addConstraint(Sketcher.Constraint("Equal", 6, 13))
sketch4.addConstraint(Sketcher.Constraint("Equal", 11, 15))
sketch4.addConstraint(Sketcher.Constraint("Equal", 1, 16))
sketch4.addConstraint(Sketcher.Constraint("Equal", 2, 17))
sketch4.addConstraint(Sketcher.Constraint("Equal", 9, 18))
sketch4.addConstraint(Sketcher.Constraint("Equal", 18, 19))
sketch4.addConstraint(Sketcher.Constraint("Parallel", 5, 12))
sketch4.addConstraint(Sketcher.Constraint("Horizontal", 8, 3, 9, 3))
sketch4.addConstraint(Sketcher.Constraint("Horizontal", 3, 3, 10, 3))
sketch4.addConstraint(Sketcher.Constraint("Horizontal", 6, 3, 11, 3))
sketch4.addConstraint(Sketcher.Constraint("Horizontal", 1, 3, 16, 3))
sketch4.addConstraint(Sketcher.Constraint("Horizontal", 9, 3, 18, 3))
sketch4.addConstraint(Sketcher.Constraint("Horizontal", 18, 3, 19, 3))
sketch4.addConstraint(Sketcher.Constraint("Horizontal", 17, 3, 1, 1))
sketch4.addConstraint(Sketcher.Constraint("Horizontal", 1, 1, 2, 2))
sketch4.addConstraint(Sketcher.Constraint("Horizontal", 2, 2, 5, 2))
sketch4.addConstraint(Sketcher.Constraint("Horizontal", 3, 1, 10, 1))
sketch4.addConstraint(Sketcher.Constraint("Horizontal", 6, 1, 12, 2))
sketch4.addConstraint(Sketcher.Constraint("Horizontal", 0, 2, 15, 2))
sketch4.addConstraint(Sketcher.Constraint("Radius", 6, Q("6 mm")))
sketch4.addConstraint(Sketcher.Constraint("Radius", 0, Q("13.8 mm")))
sketch4.addConstraint(Sketcher.Constraint("Radius", 2, Q("7.45 mm")))
sketch4.addConstraint(Sketcher.Constraint("Radius", 3, Q("3.38 mm")))
sketch4.addConstraint(Sketcher.Constraint("Diameter", 8, Q("2.7626 mm")))
sketch4.addConstraint(Sketcher.Constraint("Radius", 1, Q("3.3838 mm")))
sketch4.addConstraint(Sketcher.Constraint("DistanceX", 10, 3, 3, 3, Q("90.2 mm")))
sketch4.addConstraint(Sketcher.Constraint("DistanceX", 2, 2, 4, 2, Q("1.7 mm")))
sketch4.addConstraint(Sketcher.Constraint("DistanceX", -1, 1, 1, 3, Q("74.46 mm")))
sketch4.addConstraint(Sketcher.Constraint("DistanceX", -1, 1, 3, 3, Q("53.01 mm")))
sketch4.addConstraint(Sketcher.Constraint("DistanceX", -1, 1, 0, 3, Q("63.735 mm")))
sketch4.addConstraint(Sketcher.Constraint("DistanceY", 0, 3, -1, 1, Q("11.064 mm")))
sketch4.addConstraint(Sketcher.Constraint("DistanceY", 8, 3, -1, 1, Q("18.842 mm")))
sketch4.addConstraint(Sketcher.Constraint("DistanceX", 3, 1, 8, 3, Q("6.009 mm")))
sketch4.addConstraint(Sketcher.Constraint("DistanceX", 10, 1, 18, 3, Q("6.009 mm")))
sketch4.addConstraint(Sketcher.Constraint("DistanceX", -1, 1, 9, 3, Q("71.5132 mm")))
sketch4.addConstraint(Sketcher.Constraint("DistanceX", 19, 3, -1, 1, Q("18.6868 mm")))
pad2 = body.newObject("PartDesign::Pad", "Pad001")
pad2.Profile = sketch4
pad2.Length = 6
pad2.Reversed = True

doc.recompute()
